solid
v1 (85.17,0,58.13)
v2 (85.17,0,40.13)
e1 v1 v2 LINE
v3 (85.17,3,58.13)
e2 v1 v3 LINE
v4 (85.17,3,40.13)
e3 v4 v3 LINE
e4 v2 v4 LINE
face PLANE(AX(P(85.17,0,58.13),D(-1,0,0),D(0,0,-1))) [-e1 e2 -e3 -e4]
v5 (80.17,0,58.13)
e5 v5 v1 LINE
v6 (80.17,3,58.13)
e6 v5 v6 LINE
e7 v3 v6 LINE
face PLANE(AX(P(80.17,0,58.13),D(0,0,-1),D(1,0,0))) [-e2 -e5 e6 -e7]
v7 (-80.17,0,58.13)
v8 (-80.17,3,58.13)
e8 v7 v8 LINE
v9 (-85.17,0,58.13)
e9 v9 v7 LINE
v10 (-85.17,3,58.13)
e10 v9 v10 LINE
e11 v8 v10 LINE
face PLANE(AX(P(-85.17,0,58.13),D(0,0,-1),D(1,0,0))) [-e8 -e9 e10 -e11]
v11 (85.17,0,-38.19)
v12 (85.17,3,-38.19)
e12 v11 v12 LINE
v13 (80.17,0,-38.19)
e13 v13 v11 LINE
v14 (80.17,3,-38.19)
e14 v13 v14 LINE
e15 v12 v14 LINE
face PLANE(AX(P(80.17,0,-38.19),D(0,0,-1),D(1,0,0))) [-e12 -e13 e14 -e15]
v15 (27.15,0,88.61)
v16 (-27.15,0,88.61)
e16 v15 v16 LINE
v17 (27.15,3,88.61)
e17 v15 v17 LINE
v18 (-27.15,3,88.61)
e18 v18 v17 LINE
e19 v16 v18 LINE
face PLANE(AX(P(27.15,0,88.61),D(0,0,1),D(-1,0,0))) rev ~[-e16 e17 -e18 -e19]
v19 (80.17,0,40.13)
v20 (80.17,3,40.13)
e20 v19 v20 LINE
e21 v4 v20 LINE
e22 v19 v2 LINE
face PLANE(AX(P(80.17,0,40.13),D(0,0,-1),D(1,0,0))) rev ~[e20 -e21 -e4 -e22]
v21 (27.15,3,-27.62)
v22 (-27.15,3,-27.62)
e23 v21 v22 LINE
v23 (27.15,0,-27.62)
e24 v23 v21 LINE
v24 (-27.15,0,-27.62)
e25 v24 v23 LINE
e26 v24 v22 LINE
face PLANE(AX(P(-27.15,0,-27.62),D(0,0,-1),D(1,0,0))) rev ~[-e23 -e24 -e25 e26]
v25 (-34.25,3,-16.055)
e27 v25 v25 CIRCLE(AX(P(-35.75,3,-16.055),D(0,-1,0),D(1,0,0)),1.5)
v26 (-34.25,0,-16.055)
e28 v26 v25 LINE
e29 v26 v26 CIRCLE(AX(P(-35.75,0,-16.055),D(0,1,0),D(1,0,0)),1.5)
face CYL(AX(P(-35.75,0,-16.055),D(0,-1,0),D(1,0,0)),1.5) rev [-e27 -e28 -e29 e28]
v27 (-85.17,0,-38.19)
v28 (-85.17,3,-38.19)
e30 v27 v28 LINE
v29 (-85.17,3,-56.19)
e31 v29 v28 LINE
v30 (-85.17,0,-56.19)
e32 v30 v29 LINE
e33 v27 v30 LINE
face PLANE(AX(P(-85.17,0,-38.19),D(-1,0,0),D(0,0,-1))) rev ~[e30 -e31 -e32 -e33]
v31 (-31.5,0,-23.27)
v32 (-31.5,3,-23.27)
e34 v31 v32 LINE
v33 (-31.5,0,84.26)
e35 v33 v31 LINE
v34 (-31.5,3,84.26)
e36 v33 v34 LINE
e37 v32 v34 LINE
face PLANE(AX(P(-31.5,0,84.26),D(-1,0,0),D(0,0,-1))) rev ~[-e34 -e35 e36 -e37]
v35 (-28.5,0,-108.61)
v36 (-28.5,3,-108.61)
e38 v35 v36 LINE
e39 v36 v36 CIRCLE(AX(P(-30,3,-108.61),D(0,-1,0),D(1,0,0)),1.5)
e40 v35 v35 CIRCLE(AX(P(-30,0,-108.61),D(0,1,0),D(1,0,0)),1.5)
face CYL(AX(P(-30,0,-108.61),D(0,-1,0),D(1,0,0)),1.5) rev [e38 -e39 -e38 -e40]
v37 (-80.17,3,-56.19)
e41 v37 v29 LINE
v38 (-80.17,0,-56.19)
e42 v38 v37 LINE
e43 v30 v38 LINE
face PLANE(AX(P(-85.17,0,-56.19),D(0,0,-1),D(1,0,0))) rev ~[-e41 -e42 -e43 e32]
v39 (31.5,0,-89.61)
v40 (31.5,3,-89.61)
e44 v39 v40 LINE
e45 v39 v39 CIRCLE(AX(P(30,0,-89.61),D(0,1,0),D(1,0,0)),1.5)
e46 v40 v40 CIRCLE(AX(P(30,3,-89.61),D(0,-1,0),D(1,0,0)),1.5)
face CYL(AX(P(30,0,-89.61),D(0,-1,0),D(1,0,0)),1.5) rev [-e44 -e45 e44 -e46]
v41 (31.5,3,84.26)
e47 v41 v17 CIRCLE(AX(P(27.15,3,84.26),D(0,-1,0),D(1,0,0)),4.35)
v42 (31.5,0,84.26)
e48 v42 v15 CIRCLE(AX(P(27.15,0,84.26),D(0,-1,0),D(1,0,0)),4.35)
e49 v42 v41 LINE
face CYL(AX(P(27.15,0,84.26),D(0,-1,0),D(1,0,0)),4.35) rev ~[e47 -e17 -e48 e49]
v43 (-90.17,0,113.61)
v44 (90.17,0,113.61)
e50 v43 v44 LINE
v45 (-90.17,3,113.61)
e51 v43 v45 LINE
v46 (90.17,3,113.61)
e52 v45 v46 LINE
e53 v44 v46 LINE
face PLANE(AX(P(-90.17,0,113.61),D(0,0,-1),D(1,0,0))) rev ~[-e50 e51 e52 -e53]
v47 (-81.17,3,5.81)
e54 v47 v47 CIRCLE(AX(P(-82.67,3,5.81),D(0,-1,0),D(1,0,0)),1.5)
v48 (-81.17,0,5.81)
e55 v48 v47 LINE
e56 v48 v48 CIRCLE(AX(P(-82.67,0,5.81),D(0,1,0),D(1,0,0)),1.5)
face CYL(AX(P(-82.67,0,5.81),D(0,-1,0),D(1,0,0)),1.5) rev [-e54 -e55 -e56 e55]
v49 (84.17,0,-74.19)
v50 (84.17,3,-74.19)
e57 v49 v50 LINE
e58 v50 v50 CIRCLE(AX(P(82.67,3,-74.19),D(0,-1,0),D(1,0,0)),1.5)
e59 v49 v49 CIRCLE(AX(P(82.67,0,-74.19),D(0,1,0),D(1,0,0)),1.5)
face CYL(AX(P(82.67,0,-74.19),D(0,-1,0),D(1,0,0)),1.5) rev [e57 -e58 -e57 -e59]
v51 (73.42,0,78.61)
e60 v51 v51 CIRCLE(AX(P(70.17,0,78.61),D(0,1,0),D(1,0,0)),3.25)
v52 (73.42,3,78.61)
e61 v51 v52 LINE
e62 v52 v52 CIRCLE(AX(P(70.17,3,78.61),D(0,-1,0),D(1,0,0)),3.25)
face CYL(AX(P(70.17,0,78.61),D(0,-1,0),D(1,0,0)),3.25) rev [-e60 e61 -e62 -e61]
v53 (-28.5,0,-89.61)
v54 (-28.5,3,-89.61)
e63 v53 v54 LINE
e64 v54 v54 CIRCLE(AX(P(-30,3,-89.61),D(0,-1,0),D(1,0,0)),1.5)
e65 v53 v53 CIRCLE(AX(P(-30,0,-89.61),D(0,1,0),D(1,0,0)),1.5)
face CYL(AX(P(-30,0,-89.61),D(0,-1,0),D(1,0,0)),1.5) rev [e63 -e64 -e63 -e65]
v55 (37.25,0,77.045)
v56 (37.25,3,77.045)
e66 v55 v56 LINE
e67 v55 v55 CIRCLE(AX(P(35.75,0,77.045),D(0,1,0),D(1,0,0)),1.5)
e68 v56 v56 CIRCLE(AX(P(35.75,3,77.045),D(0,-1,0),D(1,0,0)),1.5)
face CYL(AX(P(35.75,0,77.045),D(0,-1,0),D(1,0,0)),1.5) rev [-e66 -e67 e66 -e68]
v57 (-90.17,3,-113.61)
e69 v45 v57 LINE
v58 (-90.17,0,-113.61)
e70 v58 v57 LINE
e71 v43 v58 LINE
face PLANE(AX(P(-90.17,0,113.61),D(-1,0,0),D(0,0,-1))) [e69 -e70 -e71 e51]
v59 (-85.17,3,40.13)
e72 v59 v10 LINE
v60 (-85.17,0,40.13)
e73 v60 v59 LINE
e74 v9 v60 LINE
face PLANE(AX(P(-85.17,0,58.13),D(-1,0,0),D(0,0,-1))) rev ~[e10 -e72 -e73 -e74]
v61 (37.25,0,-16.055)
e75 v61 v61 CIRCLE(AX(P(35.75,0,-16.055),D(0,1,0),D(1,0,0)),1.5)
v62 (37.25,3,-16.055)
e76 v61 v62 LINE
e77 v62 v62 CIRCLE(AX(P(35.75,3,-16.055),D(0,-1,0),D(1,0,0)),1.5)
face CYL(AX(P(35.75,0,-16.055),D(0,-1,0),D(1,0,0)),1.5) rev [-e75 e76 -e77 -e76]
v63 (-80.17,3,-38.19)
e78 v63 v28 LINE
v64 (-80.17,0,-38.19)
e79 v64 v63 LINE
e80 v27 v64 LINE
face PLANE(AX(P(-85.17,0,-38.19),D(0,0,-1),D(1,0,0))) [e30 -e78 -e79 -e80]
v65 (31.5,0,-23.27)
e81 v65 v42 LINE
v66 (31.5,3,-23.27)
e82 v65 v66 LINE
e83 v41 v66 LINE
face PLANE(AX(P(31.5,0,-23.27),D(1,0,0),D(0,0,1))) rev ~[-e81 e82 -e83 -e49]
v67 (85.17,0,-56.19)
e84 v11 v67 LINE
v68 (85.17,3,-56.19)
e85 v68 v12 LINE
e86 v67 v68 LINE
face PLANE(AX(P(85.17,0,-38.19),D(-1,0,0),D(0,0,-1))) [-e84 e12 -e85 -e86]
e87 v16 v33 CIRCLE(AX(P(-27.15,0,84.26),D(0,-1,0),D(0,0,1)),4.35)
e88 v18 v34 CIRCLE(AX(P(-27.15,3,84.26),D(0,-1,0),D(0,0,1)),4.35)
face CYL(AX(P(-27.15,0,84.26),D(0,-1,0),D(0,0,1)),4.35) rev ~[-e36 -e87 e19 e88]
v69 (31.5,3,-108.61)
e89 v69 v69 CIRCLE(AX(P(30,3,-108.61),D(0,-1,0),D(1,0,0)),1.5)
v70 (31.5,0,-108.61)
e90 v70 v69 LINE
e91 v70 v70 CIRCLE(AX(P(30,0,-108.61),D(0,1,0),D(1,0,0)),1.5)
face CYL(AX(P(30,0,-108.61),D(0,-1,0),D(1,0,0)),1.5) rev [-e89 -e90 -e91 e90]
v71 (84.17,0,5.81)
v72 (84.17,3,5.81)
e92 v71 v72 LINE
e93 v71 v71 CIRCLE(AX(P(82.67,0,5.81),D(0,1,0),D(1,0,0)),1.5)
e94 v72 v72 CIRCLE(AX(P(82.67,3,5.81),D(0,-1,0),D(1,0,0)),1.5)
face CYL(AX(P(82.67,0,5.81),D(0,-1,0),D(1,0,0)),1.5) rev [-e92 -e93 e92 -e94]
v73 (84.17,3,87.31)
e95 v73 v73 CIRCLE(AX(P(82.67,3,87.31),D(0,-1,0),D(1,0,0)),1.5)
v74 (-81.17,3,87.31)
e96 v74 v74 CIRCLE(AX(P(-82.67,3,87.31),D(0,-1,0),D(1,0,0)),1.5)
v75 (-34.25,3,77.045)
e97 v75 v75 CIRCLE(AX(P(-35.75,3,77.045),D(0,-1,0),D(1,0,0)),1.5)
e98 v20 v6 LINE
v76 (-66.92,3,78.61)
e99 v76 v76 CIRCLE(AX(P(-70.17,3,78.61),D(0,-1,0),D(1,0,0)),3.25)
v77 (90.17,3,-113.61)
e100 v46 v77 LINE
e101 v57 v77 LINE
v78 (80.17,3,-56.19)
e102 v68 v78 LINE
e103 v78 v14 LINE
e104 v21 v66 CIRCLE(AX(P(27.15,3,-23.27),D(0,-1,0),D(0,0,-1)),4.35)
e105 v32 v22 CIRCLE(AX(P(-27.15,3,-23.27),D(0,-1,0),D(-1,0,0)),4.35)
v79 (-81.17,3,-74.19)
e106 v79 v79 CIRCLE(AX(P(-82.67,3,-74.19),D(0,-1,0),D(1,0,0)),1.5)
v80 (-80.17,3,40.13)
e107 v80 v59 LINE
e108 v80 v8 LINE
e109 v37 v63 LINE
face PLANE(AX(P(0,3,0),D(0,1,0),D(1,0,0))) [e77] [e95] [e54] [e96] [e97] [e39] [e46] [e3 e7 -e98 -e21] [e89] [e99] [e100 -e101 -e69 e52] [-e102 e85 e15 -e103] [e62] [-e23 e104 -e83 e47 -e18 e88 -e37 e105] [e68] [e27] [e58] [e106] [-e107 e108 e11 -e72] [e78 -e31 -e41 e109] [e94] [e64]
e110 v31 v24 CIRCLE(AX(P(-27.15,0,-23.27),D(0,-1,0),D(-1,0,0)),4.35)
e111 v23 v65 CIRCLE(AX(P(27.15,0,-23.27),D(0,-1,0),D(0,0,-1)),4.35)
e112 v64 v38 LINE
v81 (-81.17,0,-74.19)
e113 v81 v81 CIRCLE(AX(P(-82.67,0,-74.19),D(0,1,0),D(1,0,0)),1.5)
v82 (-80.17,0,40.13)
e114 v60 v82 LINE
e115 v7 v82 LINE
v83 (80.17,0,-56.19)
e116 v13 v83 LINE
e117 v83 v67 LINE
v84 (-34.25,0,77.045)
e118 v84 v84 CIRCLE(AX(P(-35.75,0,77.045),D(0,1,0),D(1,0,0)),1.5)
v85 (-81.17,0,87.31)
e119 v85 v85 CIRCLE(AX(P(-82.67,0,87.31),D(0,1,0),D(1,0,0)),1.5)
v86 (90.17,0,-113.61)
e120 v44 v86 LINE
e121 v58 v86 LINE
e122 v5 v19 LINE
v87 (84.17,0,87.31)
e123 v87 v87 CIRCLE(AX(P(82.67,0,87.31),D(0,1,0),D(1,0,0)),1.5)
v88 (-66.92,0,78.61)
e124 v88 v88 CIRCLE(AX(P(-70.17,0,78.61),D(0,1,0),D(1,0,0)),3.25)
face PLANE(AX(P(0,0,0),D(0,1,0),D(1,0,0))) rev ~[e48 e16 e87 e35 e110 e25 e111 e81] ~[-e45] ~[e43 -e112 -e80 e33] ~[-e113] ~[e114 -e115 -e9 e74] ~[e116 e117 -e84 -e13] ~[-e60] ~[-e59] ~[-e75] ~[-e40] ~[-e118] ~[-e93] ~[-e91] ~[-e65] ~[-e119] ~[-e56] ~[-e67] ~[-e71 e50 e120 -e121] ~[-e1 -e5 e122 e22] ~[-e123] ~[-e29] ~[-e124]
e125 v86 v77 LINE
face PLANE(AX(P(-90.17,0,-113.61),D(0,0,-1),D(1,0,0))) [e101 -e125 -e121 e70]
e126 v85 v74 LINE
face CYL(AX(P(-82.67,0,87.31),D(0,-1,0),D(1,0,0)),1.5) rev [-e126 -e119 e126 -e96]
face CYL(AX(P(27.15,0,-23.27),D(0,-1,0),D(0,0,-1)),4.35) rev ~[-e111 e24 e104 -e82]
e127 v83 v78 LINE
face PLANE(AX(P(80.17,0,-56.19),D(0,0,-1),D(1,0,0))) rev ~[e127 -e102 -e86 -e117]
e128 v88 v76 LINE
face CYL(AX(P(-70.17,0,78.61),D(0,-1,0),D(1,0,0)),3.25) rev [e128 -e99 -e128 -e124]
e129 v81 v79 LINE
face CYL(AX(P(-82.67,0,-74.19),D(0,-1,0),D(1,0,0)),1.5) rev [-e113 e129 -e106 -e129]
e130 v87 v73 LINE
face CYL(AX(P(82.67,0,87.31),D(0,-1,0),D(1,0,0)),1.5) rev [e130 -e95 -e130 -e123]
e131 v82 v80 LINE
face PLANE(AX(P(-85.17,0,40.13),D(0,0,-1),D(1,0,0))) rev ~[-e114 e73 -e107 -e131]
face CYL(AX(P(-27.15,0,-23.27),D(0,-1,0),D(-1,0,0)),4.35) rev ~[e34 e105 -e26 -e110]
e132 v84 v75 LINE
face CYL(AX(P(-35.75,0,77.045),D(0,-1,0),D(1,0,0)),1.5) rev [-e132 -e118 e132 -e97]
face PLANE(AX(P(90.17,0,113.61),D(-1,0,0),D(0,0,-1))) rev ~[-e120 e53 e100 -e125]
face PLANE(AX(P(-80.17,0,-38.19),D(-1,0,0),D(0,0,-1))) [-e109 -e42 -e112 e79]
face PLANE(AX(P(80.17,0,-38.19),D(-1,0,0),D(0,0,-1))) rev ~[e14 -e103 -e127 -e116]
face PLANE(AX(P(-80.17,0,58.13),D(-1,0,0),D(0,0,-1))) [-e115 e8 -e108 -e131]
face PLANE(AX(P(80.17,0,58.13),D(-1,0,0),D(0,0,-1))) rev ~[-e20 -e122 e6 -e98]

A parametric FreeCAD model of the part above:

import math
import FreeCAD as App
import Part
import Sketcher
Q = App.Units.Quantity

doc = App.newDocument("Part")
params = doc.addObject("Spreadsheet::Sheet", "Params")
for row, (alias, value) in enumerate([
    ("sketch1_width", "180.34 mm"),
    ("sketch1_height", "227.22 mm"),
    ("pad1_length", "3 mm"),
    ("sketch2_diameter", "3 mm"),
    ("sketch2_diameter2", "6.5 mm"),
    ("sketch2_width", "5 mm"),
    ("sketch2_height", "18 mm"),
    ("sketch3_diameter", "3 mm"),
    ("sketch3_radius", "4.35 mm"),
    ("sketch3_width", "54.3 mm"),
    ("sketch3_height", "107.53 mm"),
], start=1):
    params.set(f"A{row}", alias)
    params.set(f"B{row}", "=" + value)
    params.setAlias(f"B{row}", alias)

body = doc.addObject("PartDesign::Body", "Body")

# Sketch on XZ plane
sketch1 = doc.addObject("Sketcher::SketchObject", "Sketch")
body.addObject(sketch1)
sketch1.AttachmentSupport = (doc.XZ_Plane, [""])
sketch1.MapMode = "FlatFace"
sketch1.addGeometry([
    Part.LineSegment(App.Vector(-90, -114, 0), App.Vector(-90, 114, 0)),
    Part.LineSegment(App.Vector(-90, 114, 0), App.Vector(90, 114, 0)),
    Part.LineSegment(App.Vector(90, 114, 0), App.Vector(90, -114, 0)),
    Part.LineSegment(App.Vector(90, -114, 0), App.Vector(-90, -114, 0)),
], False)
sketch1.addConstraint([
    Sketcher.Constraint("Coincident", 0, 2, 1, 1),
    Sketcher.Constraint("Coincident", 1, 2, 2, 1),
    Sketcher.Constraint("Coincident", 2, 2, 3, 1),
    Sketcher.Constraint("Coincident", 3, 2, 0, 1),
    Sketcher.Constraint("Vertical", 0),
    Sketcher.Constraint("Horizontal", 1),
    Sketcher.Constraint("Vertical", 2),
    Sketcher.Constraint("Horizontal", 3),
    Sketcher.Constraint("Symmetric", 0, 2, 2, 2, -1, 1),
    Sketcher.Constraint("DistanceX", 1, 1, 1, 2, Q("180.34 mm")),
    Sketcher.Constraint("DistanceY", 0, 1, 0, 2, Q("227.22 mm")),
])
sketch1.setExpression("Constraints[9]", "Params.sketch1_width")
sketch1.setExpression("Constraints[10]", "Params.sketch1_height")
pad1 = doc.addObject("PartDesign::Pad", "Pad")
body.addObject(pad1)
pad1.Profile = sketch1
pad1.setExpression("Length", "Params.pad1_length")
pad1.Reversed = True

# Sketch on XZ plane
sketch2 = doc.addObject("Sketcher::SketchObject", "Sketch001")
body.addObject(sketch2)
sketch2.AttachmentSupport = (doc.XZ_Plane, [""])
sketch2.MapMode = "FlatFace"
sketch2.addGeometry([
    Part.Circle(App.Vector(-82.7, 5.8, 0), App.Vector(0, 0, 1), 1.5),  # 0
    Part.Circle(App.Vector(-82.7, 87.3, 0), App.Vector(0, 0, 1), 1.5),  # 1
    Part.Circle(App.Vector(-82.7, -74.2, 0), App.Vector(0, 0, 1), 1.5),  # 2
    Part.Circle(App.Vector(82.7, 87.3, 0), App.Vector(0, 0, 1), 1.5),  # 3
    Part.Circle(App.Vector(82.7, 5.8, 0), App.Vector(0, 0, 1), 1.5),  # 4
    Part.Circle(App.Vector(82.7, -74.2, 0), App.Vector(0, 0, 1), 1.5),  # 5
    Part.Circle(App.Vector(-70.2, 78.6, 0), App.Vector(0, 0, 1), 3.2),  # 6
    Part.Circle(App.Vector(70.2, 78.6, 0), App.Vector(0, 0, 1), 3.2),  # 7
    Part.Circle(App.Vector(-30, -89.6, 0), App.Vector(0, 0, 1), 1.5),  # 8
    Part.Circle(App.Vector(-30, -108.6, 0), App.Vector(0, 0, 1), 1.5),  # 9
    Part.Circle(App.Vector(30, -89.6, 0), App.Vector(0, 0, 1), 1.5),  # 10
    Part.Circle(App.Vector(30, -108.6, 0), App.Vector(0, 0, 1), 1.5),  # 11
    Part.LineSegment(App.Vector(80.2, 40.1, 0), App.Vector(80.2, 58.1, 0)),  # 12
    Part.LineSegment(App.Vector(80.2, 58.1, 0), App.Vector(85.2, 58.1, 0)),  # 13
    Part.LineSegment(App.Vector(85.2, 58.1, 0), App.Vector(85.2, 40.1, 0)),  # 14
    Part.LineSegment(App.Vector(85.2, 40.1, 0), App.Vector(80.2, 40.1, 0)),  # 15
    Part.LineSegment(App.Vector(-85.2, 40.1, 0), App.Vector(-85.2, 58.1, 0)),  # 16
    Part.LineSegment(App.Vector(-85.2, 58.1, 0), App.Vector(-80.2, 58.1, 0)),  # 17
    Part.LineSegment(App.Vector(-80.2, 58.1, 0), App.Vector(-80.2, 40.1, 0)),  # 18
    Part.LineSegment(App.Vector(-80.2, 40.1, 0), App.Vector(-85.2, 40.1, 0)),  # 19
    Part.LineSegment(App.Vector(-85.2, -56.2, 0), App.Vector(-85.2, -38.2, 0)),  # 20
    Part.LineSegment(App.Vector(-85.2, -38.2, 0), App.Vector(-80.2, -38.2, 0)),  # 21
    Part.LineSegment(App.Vector(-80.2, -38.2, 0), App.Vector(-80.2, -56.2, 0)),  # 22
    Part.LineSegment(App.Vector(-80.2, -56.2, 0), App.Vector(-85.2, -56.2, 0)),  # 23
    Part.LineSegment(App.Vector(80.2, -56.2, 0), App.Vector(80.2, -38.2, 0)),  # 24
    Part.LineSegment(App.Vector(80.2, -38.2, 0), App.Vector(85.2, -38.2, 0)),  # 25
    Part.LineSegment(App.Vector(85.2, -38.2, 0), App.Vector(85.2, -56.2, 0)),  # 26
    Part.LineSegment(App.Vector(85.2, -56.2, 0), App.Vector(80.2, -56.2, 0)),  # 27
], False)
sketch2.addConstraint([
    Sketcher.Constraint("Coincident", 12, 2, 13, 1),
    Sketcher.Constraint("Coincident", 13, 2, 14, 1),
    Sketcher.Constraint("Coincident", 14, 2, 15, 1),
    Sketcher.Constraint("Coincident", 15, 2, 12, 1),
    Sketcher.Constraint("Coincident", 16, 2, 17, 1),
    Sketcher.Constraint("Coincident", 17, 2, 18, 1),
    Sketcher.Constraint("Coincident", 18, 2, 19, 1),
    Sketcher.Constraint("Coincident", 19, 2, 16, 1),
    Sketcher.Constraint("Coincident", 20, 2, 21, 1),
    Sketcher.Constraint("Coincident", 21, 2, 22, 1),
    Sketcher.Constraint("Coincident", 22, 2, 23, 1),
    Sketcher.Constraint("Coincident", 23, 2, 20, 1),
    Sketcher.Constraint("Coincident", 24, 2, 25, 1),
    Sketcher.Constraint("Coincident", 25, 2, 26, 1),
    Sketcher.Constraint("Coincident", 26, 2, 27, 1),
    Sketcher.Constraint("Coincident", 27, 2, 24, 1),
    Sketcher.Constraint("Vertical", 12),
    Sketcher.Constraint("Horizontal", 13),
    Sketcher.Constraint("Vertical", 14),
    Sketcher.Constraint("Horizontal", 15),
    Sketcher.Constraint("Vertical", 16),
    Sketcher.Constraint("Horizontal", 17),
    Sketcher.Constraint("Vertical", 18),
    Sketcher.Constraint("Horizontal", 19),
    Sketcher.Constraint("Vertical", 20),
    Sketcher.Constraint("Horizontal", 21),
    Sketcher.Constraint("Vertical", 22),
    Sketcher.Constraint("Horizontal", 23),
    Sketcher.Constraint("Vertical", 24),
    Sketcher.Constraint("Horizontal", 25),
    Sketcher.Constraint("Vertical", 26),
    Sketcher.Constraint("Horizontal", 27),
    Sketcher.Constraint("Equal", 0, 1),
    Sketcher.Constraint("Equal", 1, 2),
    Sketcher.Constraint("Equal", 2, 3),
    Sketcher.Constraint("Equal", 3, 4),
    Sketcher.Constraint("Equal", 4, 5),
    Sketcher.Constraint("Equal", 6, 7),
    Sketcher.Constraint("Equal", 5, 8),
    Sketcher.Constraint("Equal", 8, 9),
    Sketcher.Constraint("Equal", 9, 10),
    Sketcher.Constraint("Equal", 10, 11),
    Sketcher.Constraint("Symmetric", 1, 3, 3, 3, -2),
    Sketcher.Constraint("Symmetric", 0, 3, 4, 3, -2),
    Sketcher.Constraint("Symmetric", 2, 3, 5, 3, -2),
    Sketcher.Constraint("Symmetric", 6, 3, 7, 3, -2),
    Sketcher.Constraint("Symmetric", 8, 3, 10, 3, -2),
    Sketcher.Constraint("Symmetric", 9, 3, 11, 3, -2),
    Sketcher.Constraint("Symmetric", 13, 2, 16, 2, -2),
    Sketcher.Constraint("Symmetric", 15, 2, 18, 2, -2),
    Sketcher.Constraint("Symmetric", 21, 2, 24, 2, -2),
    Sketcher.Constraint("Symmetric", 23, 2, 26, 2, -2),
    Sketcher.Constraint("Vertical", 0, 3, 1, 3),
    Sketcher.Constraint("Vertical", 1, 3, 2, 3),
    Sketcher.Constraint("Vertical", 8, 3, 9, 3),
    Sketcher.Constraint("Vertical", 19, 2, 20, 2),
    Sketcher.Constraint("Vertical", 18, 2, 21, 2),
    Sketcher.Constraint("Equal", 18, 20),
    Sketcher.Constraint("Diameter", 0, Q("3 mm")),
    Sketcher.Constraint("Diameter", 6, Q("6.5 mm")),
    Sketcher.Constraint("DistanceX", 13, 1, 13, 2, Q("5 mm")),
    Sketcher.Constraint("DistanceY", 12, 1, 12, 2, Q("18 mm")),
    Sketcher.Constraint("DistanceX", 8, 3, -1, 1, Q("30 mm")),
    Sketcher.Constraint("DistanceY", 2, 3, 0, 3, Q("80 mm")),
    Sketcher.Constraint("DistanceY", 9, 3, 8, 3, Q("19 mm")),
    Sketcher.Constraint("DistanceX", 7, 3, 12, 2, Q("10 mm")),
    Sketcher.Constraint("DistanceY", 2, 3, 20, 2, Q("36 mm")),
    Sketcher.Constraint("DistanceY", 0, 3, 1, 3, Q("81.5 mm")),
    Sketcher.Constraint("DistanceX", 1, 3, 6, 3, Q("12.5 mm")),
    Sketcher.Constraint("DistanceY", 6, 3, 1, 3, Q("8.7 mm")),
    Sketcher.Constraint("DistanceX", 0, 3, -1, 1, Q("82.67 mm")),
    Sketcher.Constraint("DistanceY", -1, 1, 0, 3, Q("5.81 mm")),
    Sketcher.Constraint("DistanceY", 8, 3, -1, 1, Q("89.61 mm")),
    Sketcher.Constraint("DistanceY", -1, 1, 12, 2, Q("58.13 mm")),
])
sketch2.setExpression("Constraints[58]", "Params.sketch2_diameter")
sketch2.setExpression("Constraints[59]", "Params.sketch2_diameter2")
sketch2.setExpression("Constraints[60]", "Params.sketch2_width")
sketch2.setExpression("Constraints[61]", "Params.sketch2_height")
pocket1 = doc.addObject("PartDesign::Pocket", "Pocket")
body.addObject(pocket1)
pocket1.Profile = sketch2
pocket1.Type = "ThroughAll"

# Sketch on XZ plane
sketch3 = doc.addObject("Sketcher::SketchObject", "Sketch002")
body.addObject(sketch3)
sketch3.AttachmentSupport = (doc.XZ_Plane, [""])
sketch3.MapMode = "FlatFace"
sketch3.addGeometry([
    Part.Circle(App.Vector(-35.8, 77, 0), App.Vector(0, 0, 1), 1.5),  # 0
    Part.Circle(App.Vector(35.8, 77, 0), App.Vector(0, 0, 1), 1.5),  # 1
    Part.Circle(App.Vector(-35.8, -16.1, 0), App.Vector(0, 0, 1), 1.5),  # 2
    Part.Circle(App.Vector(35.8, -16.1, 0), App.Vector(0, 0, 1), 1.5),  # 3
    Part.LineSegment(App.Vector(-31.5, -23.3, 0), App.Vector(-31.5, 84.3, 0)),  # 4
    Part.ArcOfCircle(Part.Circle(App.Vector(-27.1, 84.3, 0), App.Vector(0, 0, 1), 4.4), math.radians(90), math.radians(180)),  # 5
    Part.LineSegment(App.Vector(-27.1, 88.6, 0), App.Vector(27.1, 88.6, 0)),  # 6
    Part.ArcOfCircle(Part.Circle(App.Vector(27.1, 84.3, 0), App.Vector(0, 0, 1), 4.4), math.radians(0), math.radians(90)),  # 7
    Part.LineSegment(App.Vector(31.5, 84.3, 0), App.Vector(31.5, -23.3, 0)),  # 8
    Part.ArcOfCircle(Part.Circle(App.Vector(27.1, -23.3, 0), App.Vector(0, 0, 1), 4.4), math.radians(-90), math.radians(0)),  # 9
    Part.LineSegment(App.Vector(27.1, -27.6, 0), App.Vector(-27.1, -27.6, 0)),  # 10
    Part.ArcOfCircle(Part.Circle(App.Vector(-27.1, -23.3, 0), App.Vector(0, 0, 1), 4.4), math.radians(-180), math.radians(-90)),  # 11
], False)
sketch3.addConstraint([
    Sketcher.Constraint("Tangent", 4, 2, 5, 2),
    Sketcher.Constraint("Tangent", 5, 1, 6, 1),
    Sketcher.Constraint("Tangent", 6, 2, 7, 2),
    Sketcher.Constraint("Tangent", 7, 1, 8, 1),
    Sketcher.Constraint("Tangent", 8, 2, 9, 2),
    Sketcher.Constraint("Tangent", 9, 1, 10, 1),
    Sketcher.Constraint("Tangent", 10, 2, 11, 2),
    Sketcher.Constraint("Tangent", 11, 1, 4, 1),
    Sketcher.Constraint("Vertical", 4),
    Sketcher.Constraint("Horizontal", 6),
    Sketcher.Constraint("Vertical", 8),
    Sketcher.Constraint("Horizontal", 10),
    Sketcher.Constraint("Equal", 0, 1),
    Sketcher.Constraint("Equal", 1, 2),
    Sketcher.Constraint("Equal", 2, 3),
    Sketcher.Constraint("Equal", 5, 7),
    Sketcher.Constraint("Equal", 7, 9),
    Sketcher.Constraint("Equal", 9, 11),
    Sketcher.Constraint("Symmetric", 0, 3, 1, 3, -2),
    Sketcher.Constraint("Symmetric", 2, 3, 3, 3, -2),
    Sketcher.Constraint("Vertical", 0, 3, 2, 3),
    Sketcher.Constraint("Diameter", 0, Q("3 mm")),
    Sketcher.Constraint("Radius", 5, Q("4.35 mm")),
    Sketcher.Constraint("DistanceX", 6, 1, 6, 2, Q("54.3 mm")),
    Sketcher.Constraint("DistanceY", 4, 1, 4, 2, Q("107.53 mm")),
    Sketcher.Constraint("DistanceX", 4, 2, -1, 1, Q("31.5 mm")),
    Sketcher.Constraint("DistanceX", 0, 3, 1, 3, Q("71.5 mm")),
    Sketcher.Constraint("DistanceY", 2, 3, 0, 3, Q("93.1 mm")),
    Sketcher.Constraint("DistanceY", -1, 1, 5, 3, Q("84.26 mm")),
    Sketcher.Constraint("DistanceY", -1, 1, 0, 3, Q("77.045 mm")),
])
sketch3.setExpression("Constraints[21]", "Params.sketch3_diameter")
sketch3.setExpression("Constraints[22]", "Params.sketch3_radius")
sketch3.setExpression("Constraints[23]", "Params.sketch3_width")
sketch3.setExpression("Constraints[24]", "Params.sketch3_height")
pocket2 = doc.addObject("PartDesign::Pocket", "Pocket001")
body.addObject(pocket2)
pocket2.Profile = sketch3
pocket2.Type = "ThroughAll"

doc.recompute()
